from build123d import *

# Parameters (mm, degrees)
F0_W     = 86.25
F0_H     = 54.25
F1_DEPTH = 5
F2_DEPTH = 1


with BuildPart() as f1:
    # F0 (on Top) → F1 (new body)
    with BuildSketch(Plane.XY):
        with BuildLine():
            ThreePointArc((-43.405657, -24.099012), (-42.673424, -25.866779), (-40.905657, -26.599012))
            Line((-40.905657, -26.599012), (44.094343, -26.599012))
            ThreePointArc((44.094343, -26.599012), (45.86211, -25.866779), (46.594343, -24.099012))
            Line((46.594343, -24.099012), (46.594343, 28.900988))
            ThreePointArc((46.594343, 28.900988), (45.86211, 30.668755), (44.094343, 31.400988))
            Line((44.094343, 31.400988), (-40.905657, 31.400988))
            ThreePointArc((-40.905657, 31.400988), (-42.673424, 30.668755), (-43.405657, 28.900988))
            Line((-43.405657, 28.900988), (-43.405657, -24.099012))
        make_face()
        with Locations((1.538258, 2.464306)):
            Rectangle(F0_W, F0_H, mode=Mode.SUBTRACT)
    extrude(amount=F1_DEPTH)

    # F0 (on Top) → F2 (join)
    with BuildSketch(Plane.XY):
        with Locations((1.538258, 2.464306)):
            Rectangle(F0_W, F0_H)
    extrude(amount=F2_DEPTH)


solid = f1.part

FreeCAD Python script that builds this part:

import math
import FreeCAD as App
import Part
import Sketcher
from FreeCAD import Vector
Q = App.Units.Quantity

doc = App.newDocument("Part")
body = doc.addObject("PartDesign::Body", "Body")

# Sketch on XY plane
sketch1 = doc.addObject("Sketcher::SketchObject", "Sketch")
body.addObject(sketch1)
sketch1.AttachmentSupport = (doc.XY_Plane, [""])
sketch1.MapMode = "FlatFace"
sketch1.addGeometry([
    Part.ArcOfCircle(Part.Circle(Vector(-40.905657, -24.099012, 0), Vector(0, 0, 1), 2.5), math.radians(179.999996), math.radians(270.000004)),  # 0
    Part.LineSegment(Vector(-40.905657, -26.599012, 0), Vector(44.094343, -26.599012, 0)),  # 1
    Part.ArcOfCircle(Part.Circle(Vector(44.094343, -24.099012, 0), Vector(0, 0, 1), 2.5), math.radians(-90.000004), math.radians(0.000004)),  # 2
    Part.LineSegment(Vector(46.594343, -24.099012, 0), Vector(46.594343, 28.900988, 0)),  # 3
    Part.ArcOfCircle(Part.Circle(Vector(44.094343, 28.900988, 0), Vector(0, 0, 1), 2.5), math.radians(-0.000004), math.radians(90.000004)),  # 4
    Part.LineSegment(Vector(44.094343, 31.400988, 0), Vector(-40.905657, 31.400988, 0)),  # 5
    Part.ArcOfCircle(Part.Circle(Vector(-40.905657, 28.900988, 0), Vector(0, 0, 1), 2.5), math.radians(89.999996), math.radians(180.000004)),  # 6
    Part.LineSegment(Vector(-43.405657, 28.900988, 0), Vector(-43.405657, -24.099012, 0)),  # 7
    Part.LineSegment(Vector(44.663258, -24.660694, 0), Vector(-41.586742, -24.660694, 0)),  # 8
    Part.LineSegment(Vector(-41.586742, -24.660694, 0), Vector(-41.586742, 29.589306, 0)),  # 9
    Part.LineSegment(Vector(-41.586742, 29.589306, 0), Vector(44.663258, 29.589306, 0)),  # 10
    Part.LineSegment(Vector(44.663258, 29.589306, 0), Vector(44.663258, -24.660694, 0)),  # 11
], False)
sketch1.addConstraint([
    Sketcher.Constraint("Tangent", 0, 2, 1, 1),
    Sketcher.Constraint("Tangent", 1, 2, 2, 1),
    Sketcher.Constraint("Tangent", 2, 2, 3, 1),
    Sketcher.Constraint("Tangent", 3, 2, 4, 1),
    Sketcher.Constraint("Tangent", 4, 2, 5, 1),
    Sketcher.Constraint("Tangent", 5, 2, 6, 1),
    Sketcher.Constraint("Tangent", 6, 2, 7, 1),
    Sketcher.Constraint("Tangent", 7, 2, 0, 1),
    Sketcher.Constraint("Coincident", 8, 2, 9, 1),
    Sketcher.Constraint("Coincident", 9, 2, 10, 1),
    Sketcher.Constraint("Coincident", 10, 2, 11, 1),
    Sketcher.Constraint("Coincident", 11, 2, 8, 1),
    Sketcher.Constraint("Horizontal", 1),
    Sketcher.Constraint("Vertical", 3),
    Sketcher.Constraint("Horizontal", 5),
    Sketcher.Constraint("Vertical", 7),
    Sketcher.Constraint("Horizontal", 8),
    Sketcher.Constraint("Vertical", 9),
    Sketcher.Constraint("Horizontal", 10),
    Sketcher.Constraint("Vertical", 11),
    Sketcher.Constraint("Equal", 0, 2),
    Sketcher.Constraint("Equal", 2, 4),
    Sketcher.Constraint("Equal", 4, 6),
    Sketcher.Constraint("Radius", 0, Q("2.5 mm")),
    Sketcher.Constraint("DistanceX", 1, 1, 1, 2, Q("85 mm")),
    Sketcher.Constraint("DistanceY", 3, 1, 3, 2, Q("53 mm")),
    Sketcher.Constraint("DistanceX", 8, 2, 8, 1, Q("86.25 mm")),
    Sketcher.Constraint("DistanceY", 9, 1, 9, 2, Q("54.25 mm")),
    Sketcher.Constraint("DistanceY", -1, 1, 4, 3, Q("28.900988 mm")),
    Sketcher.Constraint("DistanceY", 8, 2, 0, 3, Q("0.561682 mm")),
    Sketcher.Constraint("DistanceX", 0, 3, -1, 1, Q("40.905657 mm")),
    Sketcher.Constraint("DistanceX", 8, 2, -1, 1, Q("41.586742 mm")),
])
pad1 = doc.addObject("PartDesign::Pad", "Pad")
body.addObject(pad1)
pad1.Profile = sketch1
pad1.Length = 5

# Sketch on XY plane
sketch2 = doc.addObject("Sketcher::SketchObject", "Sketch001")
body.addObject(sketch2)
sketch2.AttachmentSupport = (doc.XY_Plane, [""])
sketch2.MapMode = "FlatFace"
sketch2.addGeometry([
    Part.LineSegment(Vector(-41.586742, 29.589306, 0), Vector(-41.586742, -24.660694, 0)),
    Part.LineSegment(Vector(-41.586742, -24.660694, 0), Vector(44.663258, -24.660694, 0)),
    Part.LineSegment(Vector(44.663258, -24.660694, 0), Vector(44.663258, 29.589306, 0)),
    Part.LineSegment(Vector(44.663258, 29.589306, 0), Vector(-41.586742, 29.589306, 0)),
], False)
sketch2.addConstraint([
    Sketcher.Constraint("Coincident", 0, 2, 1, 1),
    Sketcher.Constraint("Coincident", 1, 2, 2, 1),
    Sketcher.Constraint("Coincident", 2, 2, 3, 1),
    Sketcher.Constraint("Coincident", 3, 2, 0, 1),
    Sketcher.Constraint("Vertical", 0),
    Sketcher.Constraint("Horizontal", 1),
    Sketcher.Constraint("Vertical", 2),
    Sketcher.Constraint("Horizontal", 3),
    Sketcher.Constraint("DistanceX", 1, 1, 1, 2, Q("86.25 mm")),
    Sketcher.Constraint("DistanceY", 0, 2, 0, 1, Q("54.25 mm")),
    Sketcher.Constraint("DistanceX", 0, 2, -1, 1, Q("41.586742 mm")),
    Sketcher.Constraint("DistanceY", 0, 2, -1, 1, Q("24.660694 mm")),
])
pad2 = doc.addObject("PartDesign::Pad", "Pad001")
body.addObject(pad2)
pad2.Profile = sketch2
pad2.Length = 1

doc.recompute()
